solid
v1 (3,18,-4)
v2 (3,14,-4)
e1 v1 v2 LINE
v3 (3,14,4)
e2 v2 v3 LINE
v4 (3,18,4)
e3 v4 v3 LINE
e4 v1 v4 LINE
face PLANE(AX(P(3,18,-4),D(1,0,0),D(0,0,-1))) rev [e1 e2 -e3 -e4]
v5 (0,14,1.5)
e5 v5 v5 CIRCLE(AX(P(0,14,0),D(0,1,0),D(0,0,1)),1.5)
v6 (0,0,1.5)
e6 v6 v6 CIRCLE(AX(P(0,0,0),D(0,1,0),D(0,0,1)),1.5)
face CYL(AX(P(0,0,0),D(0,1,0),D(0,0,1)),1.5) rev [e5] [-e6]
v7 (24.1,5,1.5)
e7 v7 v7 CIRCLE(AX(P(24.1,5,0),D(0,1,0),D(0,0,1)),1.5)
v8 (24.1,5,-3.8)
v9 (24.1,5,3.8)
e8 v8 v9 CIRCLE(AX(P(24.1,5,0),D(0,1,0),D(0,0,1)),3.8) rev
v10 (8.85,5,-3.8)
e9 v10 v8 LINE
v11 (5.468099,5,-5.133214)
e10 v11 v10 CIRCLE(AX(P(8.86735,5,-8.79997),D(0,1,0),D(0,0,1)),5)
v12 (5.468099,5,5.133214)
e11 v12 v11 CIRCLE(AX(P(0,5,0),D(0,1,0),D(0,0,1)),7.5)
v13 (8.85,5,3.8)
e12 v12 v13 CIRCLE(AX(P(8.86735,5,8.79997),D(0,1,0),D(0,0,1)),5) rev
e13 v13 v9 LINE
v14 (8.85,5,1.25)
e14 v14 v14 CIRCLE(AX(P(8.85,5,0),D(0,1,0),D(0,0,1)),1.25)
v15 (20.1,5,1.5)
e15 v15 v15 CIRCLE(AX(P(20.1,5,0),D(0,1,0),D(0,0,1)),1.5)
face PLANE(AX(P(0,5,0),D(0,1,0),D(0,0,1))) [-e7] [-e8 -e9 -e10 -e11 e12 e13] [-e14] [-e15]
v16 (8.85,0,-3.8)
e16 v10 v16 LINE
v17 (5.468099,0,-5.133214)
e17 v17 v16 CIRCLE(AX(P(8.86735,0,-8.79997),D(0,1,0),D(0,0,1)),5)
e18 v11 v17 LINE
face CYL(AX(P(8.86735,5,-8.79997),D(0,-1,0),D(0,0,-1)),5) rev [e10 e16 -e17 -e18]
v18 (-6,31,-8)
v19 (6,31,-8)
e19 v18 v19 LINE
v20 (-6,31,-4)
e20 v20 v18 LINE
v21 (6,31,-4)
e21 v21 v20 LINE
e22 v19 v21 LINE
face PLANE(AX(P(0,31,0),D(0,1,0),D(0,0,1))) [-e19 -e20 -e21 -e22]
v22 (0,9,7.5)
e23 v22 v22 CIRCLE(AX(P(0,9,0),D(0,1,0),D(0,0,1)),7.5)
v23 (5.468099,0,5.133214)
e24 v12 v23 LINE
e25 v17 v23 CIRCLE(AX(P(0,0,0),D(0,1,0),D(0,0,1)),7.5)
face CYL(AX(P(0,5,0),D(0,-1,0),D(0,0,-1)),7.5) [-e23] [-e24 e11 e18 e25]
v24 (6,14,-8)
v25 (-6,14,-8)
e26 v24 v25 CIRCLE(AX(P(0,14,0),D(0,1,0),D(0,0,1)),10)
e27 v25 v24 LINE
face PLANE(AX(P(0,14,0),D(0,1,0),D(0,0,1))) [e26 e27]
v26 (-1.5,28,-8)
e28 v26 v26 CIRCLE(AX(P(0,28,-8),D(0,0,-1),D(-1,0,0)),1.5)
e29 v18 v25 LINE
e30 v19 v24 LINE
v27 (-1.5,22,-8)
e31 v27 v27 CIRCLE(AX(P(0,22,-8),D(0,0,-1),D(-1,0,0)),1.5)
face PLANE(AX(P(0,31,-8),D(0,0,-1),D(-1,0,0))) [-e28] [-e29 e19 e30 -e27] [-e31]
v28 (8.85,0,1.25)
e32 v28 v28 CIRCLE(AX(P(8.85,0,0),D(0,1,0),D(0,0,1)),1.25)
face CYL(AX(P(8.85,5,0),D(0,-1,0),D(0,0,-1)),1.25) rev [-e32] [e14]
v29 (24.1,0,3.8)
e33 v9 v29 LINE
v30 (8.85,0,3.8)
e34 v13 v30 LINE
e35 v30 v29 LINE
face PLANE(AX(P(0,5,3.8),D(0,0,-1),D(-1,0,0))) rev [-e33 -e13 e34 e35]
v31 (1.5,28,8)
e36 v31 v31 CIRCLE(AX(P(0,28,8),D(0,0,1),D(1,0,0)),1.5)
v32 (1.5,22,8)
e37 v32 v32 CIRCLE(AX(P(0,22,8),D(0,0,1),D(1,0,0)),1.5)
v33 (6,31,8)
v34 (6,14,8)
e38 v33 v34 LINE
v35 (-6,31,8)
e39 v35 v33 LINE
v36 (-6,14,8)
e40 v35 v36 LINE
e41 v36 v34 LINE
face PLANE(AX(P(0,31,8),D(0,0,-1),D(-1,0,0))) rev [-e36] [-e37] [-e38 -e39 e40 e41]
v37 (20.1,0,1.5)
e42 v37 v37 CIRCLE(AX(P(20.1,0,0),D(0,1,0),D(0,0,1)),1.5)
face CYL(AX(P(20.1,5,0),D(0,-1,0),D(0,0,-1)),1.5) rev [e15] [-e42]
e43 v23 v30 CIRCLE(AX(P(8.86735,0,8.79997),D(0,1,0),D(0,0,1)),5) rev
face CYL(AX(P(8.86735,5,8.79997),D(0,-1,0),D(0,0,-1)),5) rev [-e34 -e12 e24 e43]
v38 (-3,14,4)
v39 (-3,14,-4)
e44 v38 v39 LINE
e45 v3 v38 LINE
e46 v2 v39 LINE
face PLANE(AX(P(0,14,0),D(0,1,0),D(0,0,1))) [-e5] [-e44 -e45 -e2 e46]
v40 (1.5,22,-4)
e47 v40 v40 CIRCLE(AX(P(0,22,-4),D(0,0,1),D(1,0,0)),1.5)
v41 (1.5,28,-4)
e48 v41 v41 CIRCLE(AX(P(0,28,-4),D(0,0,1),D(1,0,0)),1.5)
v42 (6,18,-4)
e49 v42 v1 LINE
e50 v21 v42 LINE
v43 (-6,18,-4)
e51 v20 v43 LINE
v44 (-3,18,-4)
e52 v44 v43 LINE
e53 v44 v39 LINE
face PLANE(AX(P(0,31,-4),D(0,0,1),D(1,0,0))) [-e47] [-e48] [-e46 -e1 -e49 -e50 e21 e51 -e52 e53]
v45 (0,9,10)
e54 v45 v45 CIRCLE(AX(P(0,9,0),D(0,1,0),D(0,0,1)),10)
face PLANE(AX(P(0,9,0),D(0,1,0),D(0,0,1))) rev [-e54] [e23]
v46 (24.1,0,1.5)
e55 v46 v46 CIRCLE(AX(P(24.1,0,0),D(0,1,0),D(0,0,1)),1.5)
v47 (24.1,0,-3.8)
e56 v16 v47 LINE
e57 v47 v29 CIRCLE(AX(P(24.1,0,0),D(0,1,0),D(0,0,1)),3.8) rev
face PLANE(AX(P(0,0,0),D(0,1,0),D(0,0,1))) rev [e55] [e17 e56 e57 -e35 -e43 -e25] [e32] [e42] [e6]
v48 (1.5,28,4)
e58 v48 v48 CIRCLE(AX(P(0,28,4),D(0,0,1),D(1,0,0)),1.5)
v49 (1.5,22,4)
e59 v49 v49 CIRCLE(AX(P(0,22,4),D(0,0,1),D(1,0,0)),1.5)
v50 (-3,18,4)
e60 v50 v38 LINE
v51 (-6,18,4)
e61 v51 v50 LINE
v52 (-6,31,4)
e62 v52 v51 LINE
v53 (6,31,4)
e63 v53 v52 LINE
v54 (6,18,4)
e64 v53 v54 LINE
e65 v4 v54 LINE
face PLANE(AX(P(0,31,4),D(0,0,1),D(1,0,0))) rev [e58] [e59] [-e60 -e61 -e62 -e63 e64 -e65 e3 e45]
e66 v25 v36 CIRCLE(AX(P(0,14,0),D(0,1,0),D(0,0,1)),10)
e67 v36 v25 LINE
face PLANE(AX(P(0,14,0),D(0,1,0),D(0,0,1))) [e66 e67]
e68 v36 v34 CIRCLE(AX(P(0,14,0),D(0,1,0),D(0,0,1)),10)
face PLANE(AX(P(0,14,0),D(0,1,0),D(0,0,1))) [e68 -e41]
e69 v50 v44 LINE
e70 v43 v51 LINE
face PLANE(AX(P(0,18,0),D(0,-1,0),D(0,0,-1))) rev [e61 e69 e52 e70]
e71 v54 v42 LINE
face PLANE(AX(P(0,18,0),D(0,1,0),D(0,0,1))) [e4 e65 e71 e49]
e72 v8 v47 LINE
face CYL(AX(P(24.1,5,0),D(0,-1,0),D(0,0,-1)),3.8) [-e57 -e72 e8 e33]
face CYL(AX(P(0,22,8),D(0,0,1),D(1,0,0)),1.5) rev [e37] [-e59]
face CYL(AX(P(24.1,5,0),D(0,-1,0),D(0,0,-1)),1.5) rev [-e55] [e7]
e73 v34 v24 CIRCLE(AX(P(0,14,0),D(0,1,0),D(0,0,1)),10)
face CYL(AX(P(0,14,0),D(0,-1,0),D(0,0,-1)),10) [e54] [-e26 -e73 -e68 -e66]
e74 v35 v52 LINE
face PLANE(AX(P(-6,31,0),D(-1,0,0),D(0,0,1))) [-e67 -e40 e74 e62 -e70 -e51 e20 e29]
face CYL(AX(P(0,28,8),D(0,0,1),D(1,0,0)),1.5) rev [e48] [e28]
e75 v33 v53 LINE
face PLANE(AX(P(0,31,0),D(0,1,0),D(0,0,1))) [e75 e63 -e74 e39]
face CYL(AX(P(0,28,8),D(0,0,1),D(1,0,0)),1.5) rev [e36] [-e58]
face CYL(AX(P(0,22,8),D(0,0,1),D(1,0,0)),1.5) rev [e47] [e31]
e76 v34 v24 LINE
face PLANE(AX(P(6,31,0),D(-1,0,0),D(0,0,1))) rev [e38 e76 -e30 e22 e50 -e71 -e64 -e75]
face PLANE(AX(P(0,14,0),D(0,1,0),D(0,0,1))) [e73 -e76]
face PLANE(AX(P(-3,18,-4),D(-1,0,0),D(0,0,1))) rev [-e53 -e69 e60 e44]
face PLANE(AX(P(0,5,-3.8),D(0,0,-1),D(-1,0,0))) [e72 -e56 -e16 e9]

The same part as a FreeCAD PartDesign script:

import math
import FreeCAD as App
import Part
import Sketcher

V = App.Vector

doc = App.newDocument("Part")
body = doc.addObject("PartDesign::Body", "Body")

# Sketch on XZ plane
sketch1 = body.newObject("Sketcher::SketchObject", "Sketch")
sketch1.AttachmentSupport = (doc.getObject("XZ_Plane"), [""])
sketch1.MapMode = "FlatFace"
sketch1.addGeometry([
    Part.LineSegment(V(24.1, -3.8, 0), V(8.85, -3.8, 0)),  # 0
    Part.ArcOfCircle(Part.Circle(V(8.86735, -8.79997, 0), V(0, 0, 1), 5), math.radians(90.198815), math.radians(132.83193)),  # 1
    Part.ArcOfCircle(Part.Circle(V(0, 0, 0), V(0, 0, 1), 7.5), math.radians(43.190685), math.radians(316.809315)),  # 2
    Part.ArcOfCircle(Part.Circle(V(8.86735, 8.79997, 0), V(0, 0, 1), 5), math.radians(-132.83193), math.radians(-90.198815)),  # 3
    Part.LineSegment(V(8.85, 3.8, 0), V(24.1, 3.8, 0)),  # 4
    Part.ArcOfCircle(Part.Circle(V(24.1, 0, 0), V(0, 0, 1), 3.8), math.radians(-90), math.radians(90)),  # 5
    Part.Circle(V(8.85, 0, 0), V(0, 0, 1), 1.25),  # 6
    Part.Circle(V(20.1, 0, 0), V(0, 0, 1), 1.5),  # 7
    Part.Circle(V(24.1, 0, 0), V(0, 0, 1), 1.5),  # 8
], False)
sketch1.addConstraint([
    Sketcher.Constraint("Coincident", 0, 2, 1, 1),
    Sketcher.Constraint("Coincident", 1, 2, 2, 2),
    Sketcher.Constraint("Coincident", 2, 1, 3, 1),
    Sketcher.Constraint("Coincident", 3, 2, 4, 1),
    Sketcher.Constraint("Tangent", 4, 2, 5, 2),
    Sketcher.Constraint("Tangent", 5, 1, 0, 1),
    Sketcher.Constraint("Horizontal", 0),
    Sketcher.Constraint("Horizontal", 4),
    Sketcher.Constraint("Coincident", 2, 3, -1, 1),
    Sketcher.Constraint("Coincident", 8, 3, 5, 3),
    Sketcher.Constraint("Equal", 1, 3),
    Sketcher.Constraint("Equal", 7, 8),
    Sketcher.Constraint("Symmetric", 1, 3, 3, 3, -1),
    Sketcher.Constraint("PointOnObject", 5, 3, -1),
    Sketcher.Constraint("PointOnObject", 6, 3, -1),
    Sketcher.Constraint("PointOnObject", 7, 3, -1),
    Sketcher.Constraint("Vertical", 6, 3, 0, 2),
    Sketcher.Constraint("Diameter", 7, 3.0),
    Sketcher.Constraint("Radius", 1, 5.0),
    Sketcher.Constraint("Diameter", 6, 2.5),
    Sketcher.Constraint("Radius", 2, 7.5),
    Sketcher.Constraint("Radius", 5, 3.8),
    Sketcher.Constraint("DistanceX", 7, 3, 5, 3, 4.0),
    Sketcher.Constraint("DistanceX", 0, 2, 0, 1, 15.25),
    Sketcher.Constraint("DistanceX", -1, 1, 5, 3, 24.1),
    Sketcher.Constraint("DistanceX", -1, 1, 1, 2, 5.468099),
])
pad1 = body.newObject("PartDesign::Pad", "Pad")
pad1.Profile = sketch1
pad1.Length = 5
pad1.Reversed = True

# Sketch on XZ plane
sketch2 = body.newObject("Sketcher::SketchObject", "Sketch001")
sketch2.AttachmentSupport = (doc.getObject("XZ_Plane"), [""])
sketch2.MapMode = "FlatFace"
sketch2.AttachmentOffset = App.Placement(V(0, 0, -5), App.Rotation())
sketch2.addGeometry(Part.Circle(V(0, 0, 0), V(0, 0, 1), 8), False)
sketch2.addConstraint([
    Sketcher.Constraint("Coincident", 0, 3, -1, 1),
    Sketcher.Constraint("Diameter", 0, 15.0),
])
pad2 = body.newObject("PartDesign::Pad", "Pad001")
pad2.Profile = sketch2
pad2.Length = 4
pad2.Reversed = True

# Sketch on XZ plane
sketch3 = body.newObject("Sketcher::SketchObject", "Sketch002")
sketch3.AttachmentSupport = (doc.getObject("XZ_Plane"), [""])
sketch3.MapMode = "FlatFace"
sketch3.AttachmentOffset = App.Placement(V(0, 0, -9), App.Rotation())
sketch3.addGeometry(Part.Circle(V(0, 0, 0), V(0, 0, 1), 10), False)
sketch3.addConstraint([
    Sketcher.Constraint("Coincident", 0, 3, -1, 1),
    Sketcher.Constraint("Diameter", 0, 20.0),
])
pad3 = body.newObject("PartDesign::Pad", "Pad002")
pad3.Profile = sketch3
pad3.Length = 5
pad3.Reversed = True

# Sketch on XZ plane
sketch4 = body.newObject("Sketcher::SketchObject", "Sketch003")
sketch4.AttachmentSupport = (doc.getObject("XZ_Plane"), [""])
sketch4.MapMode = "FlatFace"
sketch4.AttachmentOffset = App.Placement(V(0, 0, -14), App.Rotation())
sketch4.addGeometry(Part.Circle(V(0, 0, 0), V(0, 0, 1), 1.5), False)
sketch4.addConstraint([
    Sketcher.Constraint("Coincident", 0, 3, -1, 1),
    Sketcher.Constraint("Diameter", 0, 3.0),
])
pocket1 = body.newObject("PartDesign::Pocket", "Pocket")
pocket1.Profile = sketch4
pocket1.Type = "ThroughAll"
pocket1.Reversed = True

# Sketch on XZ plane
sketch5 = body.newObject("Sketcher::SketchObject", "Sketch004")
sketch5.AttachmentSupport = (doc.getObject("XZ_Plane"), [""])
sketch5.MapMode = "FlatFace"
sketch5.AttachmentOffset = App.Placement(V(0, 0, -14), App.Rotation())
sketch5.addGeometry([
    Part.LineSegment(V(-6, 4, 0), V(-6, 8, 0)),  # 0
    Part.LineSegment(V(-6, 8, 0), V(6, 8, 0)),  # 1
    Part.LineSegment(V(6, 8, 0), V(6, 4, 0)),  # 2
    Part.LineSegment(V(6, 4, 0), V(-6, 4, 0)),  # 3
    Part.LineSegment(V(-6, -8, 0), V(-6, -4, 0)),  # 4
    Part.LineSegment(V(-6, -4, 0), V(6, -4, 0)),  # 5
    Part.LineSegment(V(6, -4, 0), V(6, -8, 0)),  # 6
    Part.LineSegment(V(6, -8, 0), V(-6, -8, 0)),  # 7
], False)
sketch5.addConstraint([
    Sketcher.Constraint("Coincident", 0, 2, 1, 1),
    Sketcher.Constraint("Coincident", 1, 2, 2, 1),
    Sketcher.Constraint("Coincident", 2, 2, 3, 1),
    Sketcher.Constraint("Coincident", 3, 2, 0, 1),
    Sketcher.Constraint("Coincident", 4, 2, 5, 1),
    Sketcher.Constraint("Coincident", 5, 2, 6, 1),
    Sketcher.Constraint("Coincident", 6, 2, 7, 1),
    Sketcher.Constraint("Coincident", 7, 2, 4, 1),
    Sketcher.Constraint("Vertical", 0),
    Sketcher.Constraint("Horizontal", 1),
    Sketcher.Constraint("Vertical", 2),
    Sketcher.Constraint("Horizontal", 3),
    Sketcher.Constraint("Vertical", 4),
    Sketcher.Constraint("Horizontal", 5),
    Sketcher.Constraint("Vertical", 6),
    Sketcher.Constraint("Horizontal", 7),
    Sketcher.Constraint("Symmetric", 2, 2, 4, 2, -1, 1),
    Sketcher.Constraint("Symmetric", 0, 2, 6, 2, -1, 1),
    Sketcher.Constraint("Vertical", 3, 2, 4, 2),
    Sketcher.Constraint("DistanceX", 1, 1, 1, 2, 12.0),
    Sketcher.Constraint("DistanceY", 0, 1, 0, 2, 4.0),
    Sketcher.Constraint("DistanceY", -1, 1, 0, 2, 8.0),
])
pad4 = body.newObject("PartDesign::Pad", "Pad003")
pad4.Profile = sketch5
pad4.Length = 17
pad4.Reversed = True

# Sketch on XZ plane
sketch6 = body.newObject("Sketcher::SketchObject", "Sketch005")
sketch6.AttachmentSupport = (doc.getObject("XZ_Plane"), [""])
sketch6.MapMode = "FlatFace"
sketch6.AttachmentOffset = App.Placement(V(0, 0, -14), App.Rotation())
sketch6.addGeometry([
    Part.LineSegment(V(3, -4, 0), V(3, 4, 0)),  # 0
    Part.LineSegment(V(3, 4, 0), V(6, 4, 0)),  # 1
    Part.LineSegment(V(6, 4, 0), V(6, -4, 0)),  # 2
    Part.LineSegment(V(6, -4, 0), V(3, -4, 0)),  # 3
    Part.LineSegment(V(-6, -4, 0), V(-6, 4, 0)),  # 4
    Part.LineSegment(V(-6, 4, 0), V(-3, 4, 0)),  # 5
    Part.LineSegment(V(-3, 4, 0), V(-3, -4, 0)),  # 6
    Part.LineSegment(V(-3, -4, 0), V(-6, -4, 0)),  # 7
], False)
sketch6.addConstraint([
    Sketcher.Constraint("Coincident", 0, 2, 1, 1),
    Sketcher.Constraint("Coincident", 1, 2, 2, 1),
    Sketcher.Constraint("Coincident", 2, 2, 3, 1),
    Sketcher.Constraint("Coincident", 3, 2, 0, 1),
    Sketcher.Constraint("Coincident", 4, 2, 5, 1),
    Sketcher.Constraint("Coincident", 5, 2, 6, 1),
    Sketcher.Constraint("Coincident", 6, 2, 7, 1),
    Sketcher.Constraint("Coincident", 7, 2, 4, 1),
    Sketcher.Constraint("Vertical", 0),
    Sketcher.Constraint("Horizontal", 1),
    Sketcher.Constraint("Vertical", 2),
    Sketcher.Constraint("Horizontal", 3),
    Sketcher.Constraint("Vertical", 4),
    Sketcher.Constraint("Horizontal", 5),
    Sketcher.Constraint("Vertical", 6),
    Sketcher.Constraint("Horizontal", 7),
    Sketcher.Constraint("Symmetric", 2, 2, 4, 2, -1, 1),
    Sketcher.Constraint("Symmetric", 0, 2, 6, 2, -1, 1),
    Sketcher.Constraint("Horizontal", 1, 2, 4, 2),
    Sketcher.Constraint("DistanceX", 1, 1, 1, 2, 3.0),
    Sketcher.Constraint("DistanceY", 0, 1, 0, 2, 8.0),
    Sketcher.Constraint("DistanceX", -1, 1, 0, 2, 3.0),
])
pad5 = body.newObject("PartDesign::Pad", "Pad004")
pad5.Profile = sketch6
pad5.Length = 4
pad5.Reversed = True

# Sketch on XY plane
sketch7 = body.newObject("Sketcher::SketchObject", "Sketch006")
sketch7.AttachmentSupport = (doc.getObject("XY_Plane"), [""])
sketch7.MapMode = "FlatFace"
sketch7.AttachmentOffset = App.Placement(V(0, 0, 8), App.Rotation())
sketch7.addGeometry([
    Part.Circle(V(0, 28, 0), V(0, 0, 1), 1.5),
    Part.Circle(V(0, 22, 0), V(0, 0, 1), 1.5),
], False)
sketch7.addConstraint([
    Sketcher.Constraint("Equal", 0, 1),
    Sketcher.Constraint("PointOnObject", 0, 3, -2),
    Sketcher.Constraint("PointOnObject", 1, 3, -2),
    Sketcher.Constraint("Diameter", 0, 3.0),
    Sketcher.Constraint("DistanceY", -1, 1, 0, 3, 28.0),
    Sketcher.Constraint("DistanceY", -1, 1, 1, 3, 22.0),
])
doc.recompute()
hole = body.newObject("PartDesign::Hole", "Hole")
hole.Profile = sketch7
hole.ThreadType = "None"
hole.Diameter = 3
hole.DepthType = "ThroughAll"

doc.recompute()
